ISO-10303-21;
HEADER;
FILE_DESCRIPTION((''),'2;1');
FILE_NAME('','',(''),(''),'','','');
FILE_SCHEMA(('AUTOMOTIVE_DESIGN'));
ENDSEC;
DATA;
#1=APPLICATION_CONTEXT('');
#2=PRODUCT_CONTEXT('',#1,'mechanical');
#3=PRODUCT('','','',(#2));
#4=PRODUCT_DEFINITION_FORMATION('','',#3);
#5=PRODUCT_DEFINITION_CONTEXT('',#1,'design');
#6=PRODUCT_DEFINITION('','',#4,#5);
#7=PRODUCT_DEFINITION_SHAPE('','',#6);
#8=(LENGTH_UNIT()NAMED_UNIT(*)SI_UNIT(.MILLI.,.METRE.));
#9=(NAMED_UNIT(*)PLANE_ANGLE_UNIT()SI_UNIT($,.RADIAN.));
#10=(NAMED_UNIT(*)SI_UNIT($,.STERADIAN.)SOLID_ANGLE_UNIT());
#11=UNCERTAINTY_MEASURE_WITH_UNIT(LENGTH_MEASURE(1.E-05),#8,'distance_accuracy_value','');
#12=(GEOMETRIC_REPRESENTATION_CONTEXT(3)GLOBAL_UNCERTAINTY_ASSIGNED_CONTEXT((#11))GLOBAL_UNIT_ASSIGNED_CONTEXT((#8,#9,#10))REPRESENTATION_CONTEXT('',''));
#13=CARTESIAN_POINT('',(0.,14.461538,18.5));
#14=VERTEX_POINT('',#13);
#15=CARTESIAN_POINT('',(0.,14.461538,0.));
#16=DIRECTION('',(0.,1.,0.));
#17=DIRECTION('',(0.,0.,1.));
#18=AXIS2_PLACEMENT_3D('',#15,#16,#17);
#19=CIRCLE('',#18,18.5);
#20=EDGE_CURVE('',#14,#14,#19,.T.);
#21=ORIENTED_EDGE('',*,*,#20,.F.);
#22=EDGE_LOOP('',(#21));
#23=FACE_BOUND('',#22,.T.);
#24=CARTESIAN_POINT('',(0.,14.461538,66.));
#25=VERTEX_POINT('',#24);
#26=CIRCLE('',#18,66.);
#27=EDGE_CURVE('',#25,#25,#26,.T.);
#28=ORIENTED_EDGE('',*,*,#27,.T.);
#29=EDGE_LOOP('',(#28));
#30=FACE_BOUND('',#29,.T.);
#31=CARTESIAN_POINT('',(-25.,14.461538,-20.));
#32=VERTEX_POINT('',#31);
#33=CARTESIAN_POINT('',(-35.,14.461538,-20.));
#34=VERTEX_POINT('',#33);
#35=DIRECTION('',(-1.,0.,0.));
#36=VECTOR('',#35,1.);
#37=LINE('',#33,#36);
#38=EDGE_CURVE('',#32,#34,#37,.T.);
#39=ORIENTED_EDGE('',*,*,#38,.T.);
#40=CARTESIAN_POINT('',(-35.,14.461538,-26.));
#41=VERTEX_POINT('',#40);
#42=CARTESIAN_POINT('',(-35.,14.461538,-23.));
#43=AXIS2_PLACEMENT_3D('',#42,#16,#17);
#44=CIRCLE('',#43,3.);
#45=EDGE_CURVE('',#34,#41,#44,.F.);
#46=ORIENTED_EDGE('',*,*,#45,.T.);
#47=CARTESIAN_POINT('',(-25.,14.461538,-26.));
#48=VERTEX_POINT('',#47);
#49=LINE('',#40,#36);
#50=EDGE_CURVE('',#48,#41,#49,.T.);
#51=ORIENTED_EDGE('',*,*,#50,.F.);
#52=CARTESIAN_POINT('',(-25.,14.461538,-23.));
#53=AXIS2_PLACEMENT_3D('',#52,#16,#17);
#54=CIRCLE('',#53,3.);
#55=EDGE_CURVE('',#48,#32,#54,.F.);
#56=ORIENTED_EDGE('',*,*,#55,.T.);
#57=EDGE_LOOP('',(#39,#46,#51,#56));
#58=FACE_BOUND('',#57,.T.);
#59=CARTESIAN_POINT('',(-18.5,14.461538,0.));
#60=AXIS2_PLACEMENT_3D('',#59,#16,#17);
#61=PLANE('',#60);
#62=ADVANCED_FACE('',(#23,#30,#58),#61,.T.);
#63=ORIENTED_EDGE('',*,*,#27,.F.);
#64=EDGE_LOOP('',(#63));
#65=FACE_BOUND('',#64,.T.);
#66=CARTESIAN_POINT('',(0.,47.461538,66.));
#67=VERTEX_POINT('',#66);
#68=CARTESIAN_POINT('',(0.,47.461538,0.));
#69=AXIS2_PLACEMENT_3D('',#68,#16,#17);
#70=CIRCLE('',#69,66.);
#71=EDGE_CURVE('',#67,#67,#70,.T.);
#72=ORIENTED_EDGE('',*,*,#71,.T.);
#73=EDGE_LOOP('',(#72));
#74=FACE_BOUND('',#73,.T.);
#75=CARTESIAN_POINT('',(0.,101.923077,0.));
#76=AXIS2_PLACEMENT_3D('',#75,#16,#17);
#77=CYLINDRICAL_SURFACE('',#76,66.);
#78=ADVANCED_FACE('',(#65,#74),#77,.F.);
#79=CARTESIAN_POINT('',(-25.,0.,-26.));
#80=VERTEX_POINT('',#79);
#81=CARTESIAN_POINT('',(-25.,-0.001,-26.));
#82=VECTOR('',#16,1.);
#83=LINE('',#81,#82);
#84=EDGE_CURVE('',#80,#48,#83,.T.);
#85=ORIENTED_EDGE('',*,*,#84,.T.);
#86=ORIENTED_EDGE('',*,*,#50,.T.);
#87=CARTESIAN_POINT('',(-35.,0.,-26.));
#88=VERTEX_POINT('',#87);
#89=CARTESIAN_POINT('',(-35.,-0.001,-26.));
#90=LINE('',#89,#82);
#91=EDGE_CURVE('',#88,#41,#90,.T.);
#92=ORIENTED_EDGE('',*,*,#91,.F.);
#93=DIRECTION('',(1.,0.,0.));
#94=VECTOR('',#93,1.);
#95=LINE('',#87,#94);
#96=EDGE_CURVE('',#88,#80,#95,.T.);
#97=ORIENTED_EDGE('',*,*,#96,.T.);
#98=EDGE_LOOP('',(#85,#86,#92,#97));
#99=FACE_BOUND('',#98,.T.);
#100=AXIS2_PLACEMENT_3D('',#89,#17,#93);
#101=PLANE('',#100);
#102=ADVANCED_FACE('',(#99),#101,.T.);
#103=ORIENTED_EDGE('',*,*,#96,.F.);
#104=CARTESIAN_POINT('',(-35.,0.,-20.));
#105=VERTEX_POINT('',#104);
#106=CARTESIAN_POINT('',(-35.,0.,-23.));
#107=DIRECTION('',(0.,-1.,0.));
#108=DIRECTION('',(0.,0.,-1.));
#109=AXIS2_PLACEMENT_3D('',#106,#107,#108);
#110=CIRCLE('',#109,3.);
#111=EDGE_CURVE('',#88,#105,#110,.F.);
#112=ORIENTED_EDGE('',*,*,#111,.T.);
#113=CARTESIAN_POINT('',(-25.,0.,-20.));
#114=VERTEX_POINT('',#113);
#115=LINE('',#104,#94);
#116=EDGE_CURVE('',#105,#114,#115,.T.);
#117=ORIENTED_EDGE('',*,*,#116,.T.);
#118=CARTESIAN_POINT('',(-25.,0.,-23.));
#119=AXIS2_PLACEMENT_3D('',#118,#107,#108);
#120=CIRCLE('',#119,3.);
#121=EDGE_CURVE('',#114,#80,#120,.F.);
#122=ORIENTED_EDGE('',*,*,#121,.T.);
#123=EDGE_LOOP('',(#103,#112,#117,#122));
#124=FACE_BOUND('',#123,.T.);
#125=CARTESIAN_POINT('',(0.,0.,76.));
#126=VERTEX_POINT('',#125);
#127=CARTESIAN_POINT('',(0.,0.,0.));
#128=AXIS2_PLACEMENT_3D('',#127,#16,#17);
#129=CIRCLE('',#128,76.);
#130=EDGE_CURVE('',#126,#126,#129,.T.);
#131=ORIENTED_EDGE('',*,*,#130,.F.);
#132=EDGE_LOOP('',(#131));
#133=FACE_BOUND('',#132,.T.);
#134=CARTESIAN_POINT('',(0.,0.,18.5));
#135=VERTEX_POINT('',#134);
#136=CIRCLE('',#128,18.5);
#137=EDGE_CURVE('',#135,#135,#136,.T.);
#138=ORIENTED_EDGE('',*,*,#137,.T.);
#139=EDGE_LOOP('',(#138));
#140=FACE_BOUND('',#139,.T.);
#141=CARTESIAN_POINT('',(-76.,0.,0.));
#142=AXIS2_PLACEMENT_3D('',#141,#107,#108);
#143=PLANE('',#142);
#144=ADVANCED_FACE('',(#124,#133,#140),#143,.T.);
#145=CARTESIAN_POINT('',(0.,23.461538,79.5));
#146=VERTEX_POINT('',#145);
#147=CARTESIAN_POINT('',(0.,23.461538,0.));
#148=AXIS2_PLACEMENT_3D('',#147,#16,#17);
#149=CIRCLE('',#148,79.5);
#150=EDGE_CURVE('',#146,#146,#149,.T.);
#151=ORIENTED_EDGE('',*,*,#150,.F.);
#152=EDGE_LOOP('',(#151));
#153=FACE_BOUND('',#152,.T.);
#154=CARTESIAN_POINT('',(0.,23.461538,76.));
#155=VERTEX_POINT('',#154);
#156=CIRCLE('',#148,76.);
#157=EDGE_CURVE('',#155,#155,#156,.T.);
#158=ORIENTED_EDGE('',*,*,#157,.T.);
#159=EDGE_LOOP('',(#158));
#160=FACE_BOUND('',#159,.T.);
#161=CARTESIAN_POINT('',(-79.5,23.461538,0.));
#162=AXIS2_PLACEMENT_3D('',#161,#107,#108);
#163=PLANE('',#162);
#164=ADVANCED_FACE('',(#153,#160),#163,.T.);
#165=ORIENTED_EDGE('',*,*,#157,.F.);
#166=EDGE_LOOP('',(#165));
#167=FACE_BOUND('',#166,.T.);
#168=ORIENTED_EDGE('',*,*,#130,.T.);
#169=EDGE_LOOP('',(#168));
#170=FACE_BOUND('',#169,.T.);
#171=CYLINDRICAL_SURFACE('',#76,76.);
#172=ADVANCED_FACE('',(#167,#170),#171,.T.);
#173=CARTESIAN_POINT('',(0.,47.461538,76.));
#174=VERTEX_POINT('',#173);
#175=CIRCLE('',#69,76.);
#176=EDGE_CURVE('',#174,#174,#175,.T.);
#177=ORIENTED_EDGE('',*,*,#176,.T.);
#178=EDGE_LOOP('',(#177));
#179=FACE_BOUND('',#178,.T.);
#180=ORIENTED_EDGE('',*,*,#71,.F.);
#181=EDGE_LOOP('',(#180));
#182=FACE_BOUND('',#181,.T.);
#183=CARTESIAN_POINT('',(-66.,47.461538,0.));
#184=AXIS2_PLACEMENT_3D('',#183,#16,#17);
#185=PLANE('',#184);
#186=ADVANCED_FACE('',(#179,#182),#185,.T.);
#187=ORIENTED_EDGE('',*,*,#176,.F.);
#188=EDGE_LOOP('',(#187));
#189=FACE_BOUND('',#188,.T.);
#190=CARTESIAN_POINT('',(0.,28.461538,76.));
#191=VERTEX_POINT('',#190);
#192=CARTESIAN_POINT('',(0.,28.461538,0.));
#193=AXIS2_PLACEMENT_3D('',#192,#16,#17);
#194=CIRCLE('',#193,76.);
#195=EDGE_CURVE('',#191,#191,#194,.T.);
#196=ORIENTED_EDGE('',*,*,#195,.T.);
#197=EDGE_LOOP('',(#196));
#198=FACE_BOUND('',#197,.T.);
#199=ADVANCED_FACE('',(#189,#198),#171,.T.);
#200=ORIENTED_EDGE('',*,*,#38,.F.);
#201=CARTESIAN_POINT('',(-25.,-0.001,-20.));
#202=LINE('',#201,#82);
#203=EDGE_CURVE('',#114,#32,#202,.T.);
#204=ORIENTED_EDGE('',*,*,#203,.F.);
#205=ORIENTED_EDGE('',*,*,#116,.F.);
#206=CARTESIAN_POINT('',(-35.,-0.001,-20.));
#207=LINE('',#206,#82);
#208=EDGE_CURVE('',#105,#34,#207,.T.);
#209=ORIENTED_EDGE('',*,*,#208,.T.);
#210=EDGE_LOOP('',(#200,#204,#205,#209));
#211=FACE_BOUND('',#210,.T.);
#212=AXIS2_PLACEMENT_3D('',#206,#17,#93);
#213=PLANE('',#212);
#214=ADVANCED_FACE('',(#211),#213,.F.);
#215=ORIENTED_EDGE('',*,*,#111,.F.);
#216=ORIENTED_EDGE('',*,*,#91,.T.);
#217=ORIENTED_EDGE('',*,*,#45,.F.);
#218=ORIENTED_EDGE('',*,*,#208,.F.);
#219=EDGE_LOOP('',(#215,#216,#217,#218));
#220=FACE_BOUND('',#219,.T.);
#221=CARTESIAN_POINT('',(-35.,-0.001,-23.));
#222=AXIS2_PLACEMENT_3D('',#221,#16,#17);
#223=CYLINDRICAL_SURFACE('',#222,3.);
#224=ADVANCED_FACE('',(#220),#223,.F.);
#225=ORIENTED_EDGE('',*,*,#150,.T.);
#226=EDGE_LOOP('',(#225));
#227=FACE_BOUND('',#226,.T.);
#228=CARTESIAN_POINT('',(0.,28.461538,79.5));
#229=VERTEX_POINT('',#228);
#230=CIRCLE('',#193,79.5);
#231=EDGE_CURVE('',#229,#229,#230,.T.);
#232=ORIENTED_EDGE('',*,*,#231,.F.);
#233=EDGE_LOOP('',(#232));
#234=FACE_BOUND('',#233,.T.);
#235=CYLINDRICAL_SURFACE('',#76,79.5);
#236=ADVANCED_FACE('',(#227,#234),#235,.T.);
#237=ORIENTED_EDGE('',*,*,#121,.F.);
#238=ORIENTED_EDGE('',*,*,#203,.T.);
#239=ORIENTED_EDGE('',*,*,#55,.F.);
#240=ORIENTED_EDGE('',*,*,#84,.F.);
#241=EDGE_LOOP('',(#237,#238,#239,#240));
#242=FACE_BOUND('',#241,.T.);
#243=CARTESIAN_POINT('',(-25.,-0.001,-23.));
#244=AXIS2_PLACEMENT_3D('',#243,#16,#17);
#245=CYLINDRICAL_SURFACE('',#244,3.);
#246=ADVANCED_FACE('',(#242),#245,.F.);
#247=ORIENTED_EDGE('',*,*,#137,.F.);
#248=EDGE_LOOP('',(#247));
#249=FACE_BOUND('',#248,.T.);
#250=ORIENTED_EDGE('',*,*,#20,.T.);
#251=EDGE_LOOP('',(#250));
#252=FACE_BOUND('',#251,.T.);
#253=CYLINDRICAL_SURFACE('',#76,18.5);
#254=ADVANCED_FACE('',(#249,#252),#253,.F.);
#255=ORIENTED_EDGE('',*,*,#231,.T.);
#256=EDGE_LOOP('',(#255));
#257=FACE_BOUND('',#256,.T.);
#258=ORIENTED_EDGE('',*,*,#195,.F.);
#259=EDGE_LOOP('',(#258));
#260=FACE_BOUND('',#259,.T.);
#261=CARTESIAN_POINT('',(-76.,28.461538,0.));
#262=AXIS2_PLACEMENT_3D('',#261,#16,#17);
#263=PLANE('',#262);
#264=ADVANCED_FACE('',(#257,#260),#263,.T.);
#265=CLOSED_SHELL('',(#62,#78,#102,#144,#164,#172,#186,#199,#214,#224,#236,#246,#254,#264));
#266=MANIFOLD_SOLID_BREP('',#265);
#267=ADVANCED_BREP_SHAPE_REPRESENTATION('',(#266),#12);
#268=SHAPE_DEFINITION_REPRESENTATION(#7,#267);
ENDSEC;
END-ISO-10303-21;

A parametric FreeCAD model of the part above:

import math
import FreeCAD as App
import Part
import Sketcher


def add_polygon(sketch, points):
    """Adds a closed chain of lines whose ends are joined by coincident constraints."""
    first, n = sketch.GeometryCount, len(points)
    for a, b in zip(points, points[1:] + points[:1]):
        sketch.addGeometry(Part.LineSegment(App.Vector(*a, 0), App.Vector(*b, 0)), False)
    for i in range(n):
        sketch.addConstraint(Sketcher.Constraint("Coincident", first + i, 2, first + (i + 1) % n, 1))

doc = App.newDocument("Part")
body = doc.addObject("PartDesign::Body", "Body")

sketch1 = body.newObject("Sketcher::SketchObject", "Sketch")
sketch1.AttachmentSupport = (doc.getObject("XY_Plane"), [""])
sketch1.MapMode = "FlatFace"
add_polygon(sketch1, [(-76, 0), (-18.5, 0), (-18.5, 14.5), (-66, 14.5), (-66, 47.5), (-76, 47.5), (-76, 28.5), (-79.5, 28.5), (-79.5, 23.5), (-76, 23.5)])
sketch1.addConstraint(Sketcher.Constraint("Horizontal", 0))
sketch1.addConstraint(Sketcher.Constraint("Vertical", 1))
sketch1.addConstraint(Sketcher.Constraint("Horizontal", 2))
sketch1.addConstraint(Sketcher.Constraint("Vertical", 3))
sketch1.addConstraint(Sketcher.Constraint("Horizontal", 4))
sketch1.addConstraint(Sketcher.Constraint("Vertical", 5))
sketch1.addConstraint(Sketcher.Constraint("Horizontal", 6))
sketch1.addConstraint(Sketcher.Constraint("Vertical", 7))
sketch1.addConstraint(Sketcher.Constraint("Horizontal", 8))
sketch1.addConstraint(Sketcher.Constraint("Vertical", 9))
sketch1.addConstraint(Sketcher.Constraint("PointOnObject", 0, 2, -1))
sketch1.addConstraint(Sketcher.Constraint("Vertical", 5, 2, 8, 2))
sketch1.addConstraint(Sketcher.Constraint("DistanceX", 4, 2, 4, 1, 10.0))
sketch1.addConstraint(Sketcher.Constraint("DistanceY", 3, 1, 3, 2, 33.0))
sketch1.addConstraint(Sketcher.Constraint("DistanceY", 5, 2, 5, 1, 19.0))
sketch1.addConstraint(Sketcher.Constraint("DistanceY", 7, 2, 7, 1, 5.0))
sketch1.addConstraint(Sketcher.Constraint("DistanceX", 0, 1, 0, 2, 57.5))
sketch1.addConstraint(Sketcher.Constraint("DistanceX", 6, 2, 6, 1, 3.5))
sketch1.addConstraint(Sketcher.Constraint("DistanceX", 2, 2, -1, 1, 66.0))
sketch1.addConstraint(Sketcher.Constraint("DistanceY", 1, 1, 1, 2, 14.461538))
revolution = body.newObject("PartDesign::Revolution", "Revolution")
revolution.Profile = sketch1
revolution.ReferenceAxis = (sketch1, ["V_Axis"])
revolution.Angle = 360

sketch2 = body.newObject("Sketcher::SketchObject", "Sketch001")
sketch2.AttachmentSupport = (doc.getObject("XZ_Plane"), [""])
sketch2.MapMode = "FlatFace"
sketch2.AttachmentOffset = App.Placement(App.Vector(0, 0, -24.461538), App.Rotation())
sketch2.addGeometry(Part.LineSegment(App.Vector(-25, -26, 0), App.Vector(-35, -26, 0)), False)
sketch2.addGeometry(Part.ArcOfCircle(Part.Circle(App.Vector(-35, -23, 0), App.Vector(0, 0, 1), 3), math.radians(90), math.radians(270)), False)
sketch2.addGeometry(Part.LineSegment(App.Vector(-35, -20, 0), App.Vector(-25, -20, 0)), False)
sketch2.addGeometry(Part.ArcOfCircle(Part.Circle(App.Vector(-25, -23, 0), App.Vector(0, 0, 1), 3), math.radians(-90), math.radians(90)), False)
sketch2.addConstraint(Sketcher.Constraint("Tangent", 0, 2, 1, 2))
sketch2.addConstraint(Sketcher.Constraint("Tangent", 1, 1, 2, 1))
sketch2.addConstraint(Sketcher.Constraint("Tangent", 2, 2, 3, 2))
sketch2.addConstraint(Sketcher.Constraint("Tangent", 3, 1, 0, 1))
sketch2.addConstraint(Sketcher.Constraint("Horizontal", 0))
sketch2.addConstraint(Sketcher.Constraint("Horizontal", 2))
sketch2.addConstraint(Sketcher.Constraint("Radius", 1, 3.0))
sketch2.addConstraint(Sketcher.Constraint("DistanceX", 0, 2, 0, 1, 10.0))
sketch2.addConstraint(Sketcher.Constraint("DistanceX", 1, 3, -1, 1, 35.0))
sketch2.addConstraint(Sketcher.Constraint("DistanceY", 1, 3, -1, 1, 23.0))
pocket1 = body.newObject("PartDesign::Pocket", "Pocket")
pocket1.Profile = sketch2
pocket1.Length = 24.461538
pocket1.Reversed = True

doc.recompute()
